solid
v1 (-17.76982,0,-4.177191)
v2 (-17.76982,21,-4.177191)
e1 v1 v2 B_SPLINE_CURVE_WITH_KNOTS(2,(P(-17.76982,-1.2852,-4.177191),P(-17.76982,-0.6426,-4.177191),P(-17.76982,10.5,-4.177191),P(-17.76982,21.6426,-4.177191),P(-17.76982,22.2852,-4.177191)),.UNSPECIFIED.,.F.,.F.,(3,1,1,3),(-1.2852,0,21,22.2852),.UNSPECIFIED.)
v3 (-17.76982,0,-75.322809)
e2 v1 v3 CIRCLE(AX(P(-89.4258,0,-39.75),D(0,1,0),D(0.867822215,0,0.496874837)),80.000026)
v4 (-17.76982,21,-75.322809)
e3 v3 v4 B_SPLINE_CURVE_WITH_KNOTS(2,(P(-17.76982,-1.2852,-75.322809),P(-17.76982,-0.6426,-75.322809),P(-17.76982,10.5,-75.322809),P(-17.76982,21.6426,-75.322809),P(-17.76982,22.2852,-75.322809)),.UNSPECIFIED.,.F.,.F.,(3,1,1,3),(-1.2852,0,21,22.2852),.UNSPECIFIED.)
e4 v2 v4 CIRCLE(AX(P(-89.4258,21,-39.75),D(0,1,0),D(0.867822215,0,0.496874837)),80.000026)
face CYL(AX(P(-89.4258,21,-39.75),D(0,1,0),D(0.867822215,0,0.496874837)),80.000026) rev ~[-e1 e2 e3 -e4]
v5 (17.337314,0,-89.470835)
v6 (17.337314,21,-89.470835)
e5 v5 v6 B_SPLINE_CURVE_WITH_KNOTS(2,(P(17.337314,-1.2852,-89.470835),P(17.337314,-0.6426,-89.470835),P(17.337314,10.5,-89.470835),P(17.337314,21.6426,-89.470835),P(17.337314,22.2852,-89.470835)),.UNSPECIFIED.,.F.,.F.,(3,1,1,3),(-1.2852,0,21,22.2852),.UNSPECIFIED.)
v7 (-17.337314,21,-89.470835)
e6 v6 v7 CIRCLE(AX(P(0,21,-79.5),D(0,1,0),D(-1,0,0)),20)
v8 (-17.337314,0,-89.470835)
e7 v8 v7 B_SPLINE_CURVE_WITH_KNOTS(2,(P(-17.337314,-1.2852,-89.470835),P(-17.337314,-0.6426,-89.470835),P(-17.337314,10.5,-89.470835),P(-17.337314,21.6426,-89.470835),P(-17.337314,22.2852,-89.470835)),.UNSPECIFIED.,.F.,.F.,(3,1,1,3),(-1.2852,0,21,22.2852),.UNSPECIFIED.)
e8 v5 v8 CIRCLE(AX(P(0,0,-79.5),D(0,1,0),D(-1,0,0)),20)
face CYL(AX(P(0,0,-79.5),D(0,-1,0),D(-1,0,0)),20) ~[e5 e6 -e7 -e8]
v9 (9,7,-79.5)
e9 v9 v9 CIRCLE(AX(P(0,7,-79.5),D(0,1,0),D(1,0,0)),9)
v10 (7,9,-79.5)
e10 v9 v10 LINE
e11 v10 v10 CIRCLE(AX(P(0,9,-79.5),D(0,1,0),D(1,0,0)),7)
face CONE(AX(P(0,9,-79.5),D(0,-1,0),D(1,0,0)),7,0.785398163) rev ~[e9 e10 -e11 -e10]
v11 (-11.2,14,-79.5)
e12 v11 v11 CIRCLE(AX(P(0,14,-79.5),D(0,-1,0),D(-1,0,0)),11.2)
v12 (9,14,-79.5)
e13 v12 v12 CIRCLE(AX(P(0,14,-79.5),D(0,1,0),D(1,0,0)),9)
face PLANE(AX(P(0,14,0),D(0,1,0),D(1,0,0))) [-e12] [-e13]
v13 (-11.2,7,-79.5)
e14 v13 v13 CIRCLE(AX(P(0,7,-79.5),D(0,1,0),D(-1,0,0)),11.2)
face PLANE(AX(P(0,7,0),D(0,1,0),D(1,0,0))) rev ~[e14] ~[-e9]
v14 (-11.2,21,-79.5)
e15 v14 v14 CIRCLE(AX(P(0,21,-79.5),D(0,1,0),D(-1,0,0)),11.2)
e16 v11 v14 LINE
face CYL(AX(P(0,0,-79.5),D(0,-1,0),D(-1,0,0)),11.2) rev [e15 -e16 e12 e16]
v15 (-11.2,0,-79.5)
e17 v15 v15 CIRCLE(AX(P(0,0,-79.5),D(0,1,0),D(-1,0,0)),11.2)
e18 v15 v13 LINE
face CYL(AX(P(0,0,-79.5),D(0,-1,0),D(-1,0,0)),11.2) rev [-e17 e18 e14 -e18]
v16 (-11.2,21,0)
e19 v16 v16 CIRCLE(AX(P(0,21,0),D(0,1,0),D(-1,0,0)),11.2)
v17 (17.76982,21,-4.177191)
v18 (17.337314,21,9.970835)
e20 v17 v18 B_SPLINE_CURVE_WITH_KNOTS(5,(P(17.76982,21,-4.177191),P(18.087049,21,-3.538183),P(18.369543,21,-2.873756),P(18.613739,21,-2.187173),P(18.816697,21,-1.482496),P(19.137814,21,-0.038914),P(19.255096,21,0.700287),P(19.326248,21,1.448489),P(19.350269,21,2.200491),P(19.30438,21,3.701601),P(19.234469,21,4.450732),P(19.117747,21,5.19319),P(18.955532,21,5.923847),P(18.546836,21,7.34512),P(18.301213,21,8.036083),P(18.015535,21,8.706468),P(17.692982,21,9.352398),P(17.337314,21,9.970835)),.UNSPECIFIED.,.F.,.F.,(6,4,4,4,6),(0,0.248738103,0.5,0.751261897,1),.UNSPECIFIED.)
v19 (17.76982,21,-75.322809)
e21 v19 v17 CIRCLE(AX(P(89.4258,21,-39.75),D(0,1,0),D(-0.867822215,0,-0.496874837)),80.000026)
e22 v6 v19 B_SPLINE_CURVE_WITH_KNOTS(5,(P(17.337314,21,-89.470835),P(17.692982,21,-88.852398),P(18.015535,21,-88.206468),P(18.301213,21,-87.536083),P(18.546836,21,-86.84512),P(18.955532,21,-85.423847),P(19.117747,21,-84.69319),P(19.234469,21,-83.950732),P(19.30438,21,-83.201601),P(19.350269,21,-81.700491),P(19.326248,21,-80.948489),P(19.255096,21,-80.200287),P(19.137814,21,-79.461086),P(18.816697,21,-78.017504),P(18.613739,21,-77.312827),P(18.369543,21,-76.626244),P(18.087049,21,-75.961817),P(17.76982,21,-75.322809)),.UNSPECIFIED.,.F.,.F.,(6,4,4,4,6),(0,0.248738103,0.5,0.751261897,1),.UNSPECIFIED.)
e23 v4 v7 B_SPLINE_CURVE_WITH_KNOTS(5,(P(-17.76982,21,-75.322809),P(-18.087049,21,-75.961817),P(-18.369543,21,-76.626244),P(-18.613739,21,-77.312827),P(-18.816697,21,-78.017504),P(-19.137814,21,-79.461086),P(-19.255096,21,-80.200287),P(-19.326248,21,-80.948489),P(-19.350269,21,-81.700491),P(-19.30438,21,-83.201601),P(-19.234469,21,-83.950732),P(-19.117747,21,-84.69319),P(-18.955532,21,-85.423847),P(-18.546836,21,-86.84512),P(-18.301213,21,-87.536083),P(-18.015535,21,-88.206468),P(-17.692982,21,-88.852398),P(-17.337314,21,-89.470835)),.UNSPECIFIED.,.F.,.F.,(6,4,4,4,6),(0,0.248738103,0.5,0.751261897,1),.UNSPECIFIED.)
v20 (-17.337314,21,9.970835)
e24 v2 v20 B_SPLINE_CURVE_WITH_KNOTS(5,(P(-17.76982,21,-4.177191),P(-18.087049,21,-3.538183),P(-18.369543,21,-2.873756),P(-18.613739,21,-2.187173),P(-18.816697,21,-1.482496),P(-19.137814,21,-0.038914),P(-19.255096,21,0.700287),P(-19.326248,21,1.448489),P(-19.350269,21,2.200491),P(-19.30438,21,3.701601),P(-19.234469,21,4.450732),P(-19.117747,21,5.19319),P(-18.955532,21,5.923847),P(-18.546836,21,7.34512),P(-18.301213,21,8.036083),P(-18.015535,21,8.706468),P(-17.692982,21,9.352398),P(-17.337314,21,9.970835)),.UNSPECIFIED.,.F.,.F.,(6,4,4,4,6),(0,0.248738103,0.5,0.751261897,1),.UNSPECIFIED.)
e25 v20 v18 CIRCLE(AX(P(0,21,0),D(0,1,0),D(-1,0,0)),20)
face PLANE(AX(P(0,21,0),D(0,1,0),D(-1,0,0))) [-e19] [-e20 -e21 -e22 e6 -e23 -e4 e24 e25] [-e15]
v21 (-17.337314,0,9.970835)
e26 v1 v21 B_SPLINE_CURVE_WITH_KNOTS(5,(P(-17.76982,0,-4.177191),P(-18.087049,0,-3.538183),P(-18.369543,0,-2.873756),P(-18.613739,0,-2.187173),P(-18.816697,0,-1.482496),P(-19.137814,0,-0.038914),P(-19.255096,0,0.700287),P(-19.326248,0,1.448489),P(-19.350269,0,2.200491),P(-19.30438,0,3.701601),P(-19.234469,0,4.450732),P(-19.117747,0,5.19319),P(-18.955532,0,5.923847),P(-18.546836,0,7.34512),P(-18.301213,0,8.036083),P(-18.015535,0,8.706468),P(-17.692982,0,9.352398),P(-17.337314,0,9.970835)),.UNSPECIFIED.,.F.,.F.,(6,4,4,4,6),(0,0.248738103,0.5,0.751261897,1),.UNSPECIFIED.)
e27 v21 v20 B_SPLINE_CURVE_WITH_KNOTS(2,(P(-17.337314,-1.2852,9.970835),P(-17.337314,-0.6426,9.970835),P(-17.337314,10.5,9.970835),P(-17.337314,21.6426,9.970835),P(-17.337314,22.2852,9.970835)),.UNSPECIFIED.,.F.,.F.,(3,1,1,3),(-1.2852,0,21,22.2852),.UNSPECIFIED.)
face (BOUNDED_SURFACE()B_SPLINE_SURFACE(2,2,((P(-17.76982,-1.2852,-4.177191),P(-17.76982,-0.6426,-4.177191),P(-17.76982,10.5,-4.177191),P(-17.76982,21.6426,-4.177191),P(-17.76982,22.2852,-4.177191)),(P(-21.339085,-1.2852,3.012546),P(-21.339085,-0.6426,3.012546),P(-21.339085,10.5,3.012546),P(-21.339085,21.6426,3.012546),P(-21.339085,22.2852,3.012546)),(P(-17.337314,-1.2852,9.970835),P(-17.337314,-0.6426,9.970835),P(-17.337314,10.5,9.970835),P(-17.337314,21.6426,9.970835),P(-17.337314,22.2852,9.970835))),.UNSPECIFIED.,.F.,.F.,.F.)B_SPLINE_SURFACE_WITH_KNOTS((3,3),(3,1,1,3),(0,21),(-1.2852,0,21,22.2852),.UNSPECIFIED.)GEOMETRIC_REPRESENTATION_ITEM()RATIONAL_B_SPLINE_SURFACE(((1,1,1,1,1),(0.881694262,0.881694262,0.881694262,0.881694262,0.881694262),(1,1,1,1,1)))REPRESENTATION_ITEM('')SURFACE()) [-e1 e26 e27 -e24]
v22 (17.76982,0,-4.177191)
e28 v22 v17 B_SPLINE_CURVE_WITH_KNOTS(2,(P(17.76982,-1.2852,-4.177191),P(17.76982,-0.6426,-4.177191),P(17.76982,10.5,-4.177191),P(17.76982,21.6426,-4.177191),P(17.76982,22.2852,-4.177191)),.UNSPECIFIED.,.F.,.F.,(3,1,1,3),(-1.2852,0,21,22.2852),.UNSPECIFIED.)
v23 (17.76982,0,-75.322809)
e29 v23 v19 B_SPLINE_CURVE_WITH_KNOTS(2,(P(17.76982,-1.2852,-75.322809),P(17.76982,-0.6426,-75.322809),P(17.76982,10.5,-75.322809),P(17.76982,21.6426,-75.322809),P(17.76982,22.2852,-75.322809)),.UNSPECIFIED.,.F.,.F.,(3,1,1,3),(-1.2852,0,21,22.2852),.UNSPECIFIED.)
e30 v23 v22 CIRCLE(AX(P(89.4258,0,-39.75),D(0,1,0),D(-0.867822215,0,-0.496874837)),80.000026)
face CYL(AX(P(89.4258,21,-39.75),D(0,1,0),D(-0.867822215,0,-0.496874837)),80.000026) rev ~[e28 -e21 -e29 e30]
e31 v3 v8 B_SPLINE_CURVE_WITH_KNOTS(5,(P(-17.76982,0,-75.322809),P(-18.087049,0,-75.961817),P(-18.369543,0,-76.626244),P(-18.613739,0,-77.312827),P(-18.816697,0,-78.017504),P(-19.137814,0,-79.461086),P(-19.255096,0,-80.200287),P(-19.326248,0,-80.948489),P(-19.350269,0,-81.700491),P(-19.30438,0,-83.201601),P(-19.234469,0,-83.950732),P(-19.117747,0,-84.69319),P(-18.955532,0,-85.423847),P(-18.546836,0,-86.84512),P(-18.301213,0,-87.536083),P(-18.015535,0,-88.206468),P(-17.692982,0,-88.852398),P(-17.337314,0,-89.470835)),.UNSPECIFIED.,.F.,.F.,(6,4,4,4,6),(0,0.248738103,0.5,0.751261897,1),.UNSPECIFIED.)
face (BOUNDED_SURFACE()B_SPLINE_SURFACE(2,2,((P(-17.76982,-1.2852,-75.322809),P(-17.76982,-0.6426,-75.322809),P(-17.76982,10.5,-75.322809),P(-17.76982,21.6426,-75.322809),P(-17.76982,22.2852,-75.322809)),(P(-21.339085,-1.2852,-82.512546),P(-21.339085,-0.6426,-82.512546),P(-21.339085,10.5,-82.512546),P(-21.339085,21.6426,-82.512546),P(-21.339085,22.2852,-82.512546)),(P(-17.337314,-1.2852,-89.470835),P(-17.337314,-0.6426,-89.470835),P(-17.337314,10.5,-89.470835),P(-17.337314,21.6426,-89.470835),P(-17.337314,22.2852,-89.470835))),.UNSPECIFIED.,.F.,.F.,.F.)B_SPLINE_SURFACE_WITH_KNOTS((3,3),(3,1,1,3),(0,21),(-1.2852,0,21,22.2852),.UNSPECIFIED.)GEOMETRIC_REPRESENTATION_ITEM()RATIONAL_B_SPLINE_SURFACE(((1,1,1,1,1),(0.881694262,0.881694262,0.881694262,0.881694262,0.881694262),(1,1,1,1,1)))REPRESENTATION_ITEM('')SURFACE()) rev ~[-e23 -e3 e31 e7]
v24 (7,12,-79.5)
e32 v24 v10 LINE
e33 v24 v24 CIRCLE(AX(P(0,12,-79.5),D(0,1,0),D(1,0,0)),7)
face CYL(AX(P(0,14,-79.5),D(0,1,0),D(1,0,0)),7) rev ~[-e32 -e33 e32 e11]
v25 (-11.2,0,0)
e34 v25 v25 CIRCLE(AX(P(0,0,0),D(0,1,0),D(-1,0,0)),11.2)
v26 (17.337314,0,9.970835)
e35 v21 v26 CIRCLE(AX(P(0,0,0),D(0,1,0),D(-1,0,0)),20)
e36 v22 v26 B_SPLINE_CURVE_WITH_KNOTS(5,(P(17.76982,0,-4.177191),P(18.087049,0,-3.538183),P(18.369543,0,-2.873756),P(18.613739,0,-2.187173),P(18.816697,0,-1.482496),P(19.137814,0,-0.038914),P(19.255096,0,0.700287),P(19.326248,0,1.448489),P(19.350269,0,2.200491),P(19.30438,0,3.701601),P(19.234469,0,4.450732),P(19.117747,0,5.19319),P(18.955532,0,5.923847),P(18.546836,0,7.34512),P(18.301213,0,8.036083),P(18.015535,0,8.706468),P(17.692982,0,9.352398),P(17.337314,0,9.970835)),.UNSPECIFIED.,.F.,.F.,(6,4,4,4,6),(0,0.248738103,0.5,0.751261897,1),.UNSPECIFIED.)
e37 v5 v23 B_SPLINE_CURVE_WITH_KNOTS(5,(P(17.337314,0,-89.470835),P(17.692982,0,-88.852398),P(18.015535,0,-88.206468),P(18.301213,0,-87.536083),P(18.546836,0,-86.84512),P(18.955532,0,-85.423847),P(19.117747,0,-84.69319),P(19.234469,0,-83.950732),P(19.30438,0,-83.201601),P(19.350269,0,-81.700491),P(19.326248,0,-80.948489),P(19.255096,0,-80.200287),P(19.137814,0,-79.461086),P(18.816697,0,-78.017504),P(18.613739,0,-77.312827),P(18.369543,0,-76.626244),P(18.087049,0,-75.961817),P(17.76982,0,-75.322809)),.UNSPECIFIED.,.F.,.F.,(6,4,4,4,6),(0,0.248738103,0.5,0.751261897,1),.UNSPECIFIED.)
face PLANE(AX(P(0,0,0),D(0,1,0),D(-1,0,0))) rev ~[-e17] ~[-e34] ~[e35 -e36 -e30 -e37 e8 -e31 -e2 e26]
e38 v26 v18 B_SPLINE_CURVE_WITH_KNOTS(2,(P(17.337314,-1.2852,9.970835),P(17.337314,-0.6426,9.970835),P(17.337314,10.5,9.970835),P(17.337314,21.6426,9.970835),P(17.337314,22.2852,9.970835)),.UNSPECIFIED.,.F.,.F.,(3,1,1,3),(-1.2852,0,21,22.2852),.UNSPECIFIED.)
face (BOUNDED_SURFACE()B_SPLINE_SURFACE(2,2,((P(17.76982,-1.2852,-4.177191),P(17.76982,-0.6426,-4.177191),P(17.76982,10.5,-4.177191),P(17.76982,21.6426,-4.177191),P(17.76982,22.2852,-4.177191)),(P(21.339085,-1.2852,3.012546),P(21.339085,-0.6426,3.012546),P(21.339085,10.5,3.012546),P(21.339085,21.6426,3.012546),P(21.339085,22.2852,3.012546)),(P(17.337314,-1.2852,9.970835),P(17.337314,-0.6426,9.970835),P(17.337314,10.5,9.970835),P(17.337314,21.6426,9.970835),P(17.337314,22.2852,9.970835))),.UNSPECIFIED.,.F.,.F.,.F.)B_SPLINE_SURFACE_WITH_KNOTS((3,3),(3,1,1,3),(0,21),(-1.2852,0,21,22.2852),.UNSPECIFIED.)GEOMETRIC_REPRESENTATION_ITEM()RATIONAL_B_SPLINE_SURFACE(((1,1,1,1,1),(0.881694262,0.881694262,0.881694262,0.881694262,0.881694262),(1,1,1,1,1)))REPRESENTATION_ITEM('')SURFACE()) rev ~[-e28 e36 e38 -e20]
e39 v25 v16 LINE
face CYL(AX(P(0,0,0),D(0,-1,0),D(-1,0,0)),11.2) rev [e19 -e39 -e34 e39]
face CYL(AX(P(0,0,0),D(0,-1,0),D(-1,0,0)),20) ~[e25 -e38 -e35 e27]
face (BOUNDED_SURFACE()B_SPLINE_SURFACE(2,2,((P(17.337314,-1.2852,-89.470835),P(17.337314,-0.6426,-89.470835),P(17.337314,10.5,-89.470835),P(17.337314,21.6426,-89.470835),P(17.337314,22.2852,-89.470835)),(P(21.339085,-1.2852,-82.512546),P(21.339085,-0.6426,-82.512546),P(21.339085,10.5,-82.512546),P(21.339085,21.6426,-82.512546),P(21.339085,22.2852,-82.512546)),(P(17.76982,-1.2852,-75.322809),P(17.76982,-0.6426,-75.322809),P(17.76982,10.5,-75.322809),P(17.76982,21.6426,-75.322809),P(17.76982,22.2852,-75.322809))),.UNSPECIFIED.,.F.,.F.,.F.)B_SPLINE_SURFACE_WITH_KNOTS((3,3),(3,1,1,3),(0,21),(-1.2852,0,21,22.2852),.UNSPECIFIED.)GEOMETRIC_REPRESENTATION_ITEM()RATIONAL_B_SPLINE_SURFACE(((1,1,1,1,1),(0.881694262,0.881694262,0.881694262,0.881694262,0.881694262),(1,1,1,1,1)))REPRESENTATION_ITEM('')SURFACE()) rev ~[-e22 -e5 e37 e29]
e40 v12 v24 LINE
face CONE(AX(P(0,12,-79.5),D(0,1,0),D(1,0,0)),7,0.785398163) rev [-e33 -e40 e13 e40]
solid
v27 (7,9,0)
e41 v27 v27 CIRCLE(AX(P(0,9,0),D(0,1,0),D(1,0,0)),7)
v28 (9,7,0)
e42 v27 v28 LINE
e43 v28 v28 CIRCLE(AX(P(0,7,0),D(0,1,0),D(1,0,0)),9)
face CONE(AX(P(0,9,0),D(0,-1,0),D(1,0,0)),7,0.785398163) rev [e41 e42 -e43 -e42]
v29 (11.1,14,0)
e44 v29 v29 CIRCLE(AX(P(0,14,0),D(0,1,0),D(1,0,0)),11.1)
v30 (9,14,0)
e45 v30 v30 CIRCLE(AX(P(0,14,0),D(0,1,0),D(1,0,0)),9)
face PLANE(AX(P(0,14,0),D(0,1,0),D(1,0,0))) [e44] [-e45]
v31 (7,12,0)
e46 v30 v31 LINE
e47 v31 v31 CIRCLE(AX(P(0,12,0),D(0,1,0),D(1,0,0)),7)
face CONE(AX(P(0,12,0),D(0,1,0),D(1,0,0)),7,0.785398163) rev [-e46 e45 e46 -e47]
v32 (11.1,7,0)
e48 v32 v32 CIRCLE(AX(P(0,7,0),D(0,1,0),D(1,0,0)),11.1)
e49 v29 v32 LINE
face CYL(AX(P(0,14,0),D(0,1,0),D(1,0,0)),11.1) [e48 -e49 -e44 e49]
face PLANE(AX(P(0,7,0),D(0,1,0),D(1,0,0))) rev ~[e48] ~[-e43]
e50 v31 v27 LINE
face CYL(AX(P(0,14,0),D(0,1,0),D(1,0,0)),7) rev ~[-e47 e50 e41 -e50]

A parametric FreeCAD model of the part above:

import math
import FreeCAD as App
import Part
import Sketcher
Q = App.Units.Quantity


def edges_at(feature, points):
    """Names of the edges that pass closest to the given points."""
    edges = feature.Shape.Edges
    near = lambda p: min(range(len(edges)), key=lambda i: edges[i].distToShape(Part.Vertex(*p))[0])
    return sorted({f"Edge{near(p) + 1}" for p in points})

doc = App.newDocument("Part")
body = doc.addObject("PartDesign::Body", "Body")
body.AllowCompound = True

# Sketch on XZ plane
sketch1 = body.newObject("Sketcher::SketchObject", "Sketch")
sketch1.AttachmentSupport = (doc.getObject("XZ_Plane"), [""])
sketch1.MapMode = "FlatFace"
sketch1.addGeometry([
    Part.ArcOfCircle(Part.Circle(App.Vector(0, 0, 0), App.Vector(0, 0, 1), 20), math.radians(0), math.radians(180)),  # 0
    Part.LineSegment(App.Vector(20, 0, 0), App.Vector(20, -79.5, 0)),  # 1
    Part.ArcOfCircle(Part.Circle(App.Vector(0, -79.5, 0), App.Vector(0, 0, 1), 20), math.radians(180), math.radians(360)),  # 2
    Part.LineSegment(App.Vector(-20, -79.5, 0), App.Vector(-20, 0, 0)),  # 3
    Part.Circle(App.Vector(0, 0, 0), App.Vector(0, 0, 1), 11.2),  # 4
    Part.Circle(App.Vector(0, -79.5, 0), App.Vector(0, 0, 1), 11.2),  # 5
], False)
sketch1.addConstraint([
    Sketcher.Constraint("Tangent", 0, 1, 1, 1),
    Sketcher.Constraint("Tangent", 1, 2, 2, 2),
    Sketcher.Constraint("Tangent", 2, 1, 3, 1),
    Sketcher.Constraint("Tangent", 3, 2, 0, 2),
    Sketcher.Constraint("Vertical", 1),
    Sketcher.Constraint("Vertical", 3),
    Sketcher.Constraint("Coincident", 0, 3, -1, 1),
    Sketcher.Constraint("Coincident", 4, 3, -1, 1),
    Sketcher.Constraint("Coincident", 5, 3, 2, 3),
    Sketcher.Constraint("Equal", 4, 5),
    Sketcher.Constraint("Radius", 0, Q("20 mm")),
    Sketcher.Constraint("Diameter", 4, Q("22.4 mm")),
    Sketcher.Constraint("DistanceY", 1, 2, 1, 1, Q("79.5 mm")),
])
pad1 = body.newObject("PartDesign::Pad", "Pad")
pad1.Profile = sketch1
pad1.Length = 21
pad1.Reversed = True

# Sketch on XZ plane
sketch2 = body.newObject("Sketcher::SketchObject", "Sketch001")
sketch2.AttachmentSupport = (doc.getObject("XZ_Plane"), [""])
sketch2.MapMode = "FlatFace"
sketch2.AttachmentOffset = App.Placement(App.Vector(0, 0, -14), App.Rotation())
sketch2.addGeometry([
    Part.Circle(App.Vector(0, -79.5, 0), App.Vector(0, 0, 1), 11.2),
    Part.Circle(App.Vector(0, -79.5, 0), App.Vector(0, 0, 1), 7),
    Part.Circle(App.Vector(0, 0, 0), App.Vector(0, 0, 1), 11.1),
    Part.Circle(App.Vector(0, 0, 0), App.Vector(0, 0, 1), 7),
], False)
sketch2.addConstraint([
    Sketcher.Constraint("Coincident", 2, 3, -1, 1),
    Sketcher.Constraint("Coincident", 3, 3, -1, 1),
    Sketcher.Constraint("Coincident", 1, 3, 0, 3),
    Sketcher.Constraint("Equal", 1, 3),
    Sketcher.Constraint("PointOnObject", 0, 3, -2),
    Sketcher.Constraint("Diameter", 1, Q("14 mm")),
    Sketcher.Constraint("Diameter", 0, Q("22.4 mm")),
    Sketcher.Constraint("Diameter", 2, Q("22.2 mm")),
    Sketcher.Constraint("DistanceY", 0, 3, -1, 1, Q("79.5 mm")),
])
pad2 = body.newObject("PartDesign::Pad", "Pad001")
pad2.Profile = sketch2
pad2.Length = 7
doc.recompute()

chamfer = body.newObject("PartDesign::Chamfer", "Chamfer")
chamfer.Base = (pad2, edges_at(pad2, [
    (-7, 14, 0),
    (-7, 14, -79.5),
    (-7, 7, -79.5),
    (-7, 7, 0),
]))
chamfer.Size = 2

# Sketch on XZ plane
sketch3 = body.newObject("Sketcher::SketchObject", "Sketch002")
sketch3.AttachmentSupport = (doc.getObject("XZ_Plane"), [""])
sketch3.MapMode = "FlatFace"
sketch3.AttachmentOffset = App.Placement(App.Vector(0, 0, -21), App.Rotation())
sketch3.addGeometry([
    Part.ArcOfCircle(Part.Circle(App.Vector(-89.4258, -39.75, 0), App.Vector(0, 0, 1), 80.000026), math.radians(-29.793455), math.radians(29.793455)),
    Part.LineSegment(App.Vector(-20, -79.5, 0), App.Vector(-20, 0, 0)),
    Part.LineSegment(App.Vector(20, 0, 0), App.Vector(20, -79.5, 0)),
    Part.ArcOfCircle(Part.Circle(App.Vector(89.4258, -39.75, 0), App.Vector(0, 0, 1), 80.000026), math.radians(150.206545), math.radians(209.793455)),
], False)
sketch3.addConstraint([
    Sketcher.Constraint("Coincident", 0, 1, 1, 1),
    Sketcher.Constraint("Coincident", 1, 2, 0, 2),
    Sketcher.Constraint("Coincident", 2, 1, 3, 1),
    Sketcher.Constraint("Coincident", 3, 2, 2, 2),
    Sketcher.Constraint("Vertical", 1),
    Sketcher.Constraint("Vertical", 2),
    Sketcher.Constraint("Equal", 0, 3),
    Sketcher.Constraint("Symmetric", 1, 2, 2, 1, -1, 1),
    Sketcher.Constraint("Symmetric", 0, 3, 3, 3, -2),
    Sketcher.Constraint("Radius", 0, Q("80 mm")),
    Sketcher.Constraint("DistanceY", 1, 1, 1, 2, Q("79.5 mm")),
    Sketcher.Constraint("DistanceX", 0, 1, -1, 1, Q("20 mm")),
])
pocket1 = body.newObject("PartDesign::Pocket", "Pocket")
pocket1.Profile = sketch3
pocket1.Length = 80
pocket1.Reversed = True
doc.recompute()

fillet = body.newObject("PartDesign::Fillet", "Fillet")
fillet.Base = (pocket1, edges_at(pocket1, [
    (20, 10.5, 0),
    (20, 10.5, -79.5),
    (-20, 10.5, -79.5),
    (-20, 10.5, 0),
]))
fillet.Radius = 15

doc.recompute()
